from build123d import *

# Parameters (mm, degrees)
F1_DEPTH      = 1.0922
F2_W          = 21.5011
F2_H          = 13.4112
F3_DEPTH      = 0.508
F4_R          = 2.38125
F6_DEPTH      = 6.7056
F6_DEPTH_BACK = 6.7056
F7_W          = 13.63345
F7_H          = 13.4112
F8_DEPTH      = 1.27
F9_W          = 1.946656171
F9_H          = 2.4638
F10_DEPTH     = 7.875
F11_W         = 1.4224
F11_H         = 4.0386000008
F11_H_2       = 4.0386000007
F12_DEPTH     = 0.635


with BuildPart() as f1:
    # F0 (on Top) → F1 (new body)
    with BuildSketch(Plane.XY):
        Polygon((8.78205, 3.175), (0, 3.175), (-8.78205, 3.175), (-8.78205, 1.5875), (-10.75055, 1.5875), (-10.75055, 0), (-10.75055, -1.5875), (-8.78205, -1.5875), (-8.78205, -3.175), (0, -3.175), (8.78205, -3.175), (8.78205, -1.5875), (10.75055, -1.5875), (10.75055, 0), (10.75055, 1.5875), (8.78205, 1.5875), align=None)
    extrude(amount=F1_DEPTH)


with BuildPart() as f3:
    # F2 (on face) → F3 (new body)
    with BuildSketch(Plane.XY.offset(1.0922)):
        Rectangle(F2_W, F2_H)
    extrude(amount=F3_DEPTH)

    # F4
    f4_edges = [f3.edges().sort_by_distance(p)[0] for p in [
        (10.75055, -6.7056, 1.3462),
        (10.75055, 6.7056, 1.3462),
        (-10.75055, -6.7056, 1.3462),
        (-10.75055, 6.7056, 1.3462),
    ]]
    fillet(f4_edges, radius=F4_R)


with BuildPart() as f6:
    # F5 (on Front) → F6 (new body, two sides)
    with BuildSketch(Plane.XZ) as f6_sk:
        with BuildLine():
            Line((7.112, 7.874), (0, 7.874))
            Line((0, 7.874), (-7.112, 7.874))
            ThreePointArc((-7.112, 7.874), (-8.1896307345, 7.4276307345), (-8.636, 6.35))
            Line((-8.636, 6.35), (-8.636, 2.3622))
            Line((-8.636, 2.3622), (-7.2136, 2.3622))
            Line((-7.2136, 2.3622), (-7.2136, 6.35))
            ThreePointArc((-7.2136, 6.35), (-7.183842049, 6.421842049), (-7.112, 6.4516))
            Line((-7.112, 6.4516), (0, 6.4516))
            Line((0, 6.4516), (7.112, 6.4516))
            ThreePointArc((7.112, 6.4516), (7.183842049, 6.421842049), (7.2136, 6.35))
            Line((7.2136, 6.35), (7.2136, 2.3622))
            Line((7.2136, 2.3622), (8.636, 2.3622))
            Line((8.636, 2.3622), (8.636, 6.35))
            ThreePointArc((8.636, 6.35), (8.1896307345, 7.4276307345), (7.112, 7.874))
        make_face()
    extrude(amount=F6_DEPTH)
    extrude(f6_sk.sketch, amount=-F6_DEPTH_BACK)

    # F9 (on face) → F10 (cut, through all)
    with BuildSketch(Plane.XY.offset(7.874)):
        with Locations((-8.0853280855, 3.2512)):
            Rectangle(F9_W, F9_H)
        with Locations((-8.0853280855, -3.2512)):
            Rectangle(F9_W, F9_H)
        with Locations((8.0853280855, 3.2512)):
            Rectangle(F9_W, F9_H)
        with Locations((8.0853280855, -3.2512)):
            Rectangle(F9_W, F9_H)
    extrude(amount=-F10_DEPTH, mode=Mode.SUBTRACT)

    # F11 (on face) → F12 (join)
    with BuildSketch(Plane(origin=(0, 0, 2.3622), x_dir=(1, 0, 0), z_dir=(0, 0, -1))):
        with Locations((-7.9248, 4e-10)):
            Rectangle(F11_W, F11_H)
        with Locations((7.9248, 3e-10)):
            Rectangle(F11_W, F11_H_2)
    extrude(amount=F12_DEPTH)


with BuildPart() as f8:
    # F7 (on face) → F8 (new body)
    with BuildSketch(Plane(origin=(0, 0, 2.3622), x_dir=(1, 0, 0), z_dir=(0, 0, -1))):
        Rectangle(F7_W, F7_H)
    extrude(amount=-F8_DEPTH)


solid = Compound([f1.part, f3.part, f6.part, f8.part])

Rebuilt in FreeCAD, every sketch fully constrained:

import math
import FreeCAD as App
import Part
import Sketcher
Q = App.Units.Quantity


def edges_at(feature, points):
    """Names of the edges that pass closest to the given points."""
    edges = feature.Shape.Edges
    near = lambda p: min(range(len(edges)), key=lambda i: edges[i].distToShape(Part.Vertex(*p))[0])
    return sorted({f"Edge{near(p) + 1}" for p in points})

doc = App.newDocument("Part")
body = doc.addObject("PartDesign::Body", "Body")

# Sketch on XY plane
sketch1 = doc.addObject("Sketcher::SketchObject", "Sketch")
body.addObject(sketch1)
sketch1.AttachmentSupport = (doc.XY_Plane, [""])
sketch1.MapMode = "FlatFace"
sketch1.addGeometry(Part.LineSegment(App.Vector(8.78205, 3.175, 0), App.Vector(-8.78205, 3.175, 0)), False)
sketch1.addGeometry(Part.LineSegment(App.Vector(-8.78205, 3.175, 0), App.Vector(-8.78205, 1.5875, 0)), False)
sketch1.addGeometry(Part.LineSegment(App.Vector(-8.78205, 1.5875, 0), App.Vector(-10.75055, 1.5875, 0)), False)
sketch1.addGeometry(Part.LineSegment(App.Vector(-10.75055, 1.5875, 0), App.Vector(-10.75055, -1.5875, 0)), False)
sketch1.addGeometry(Part.LineSegment(App.Vector(-10.75055, -1.5875, 0), App.Vector(-8.78205, -1.5875, 0)), False)
sketch1.addGeometry(Part.LineSegment(App.Vector(-8.78205, -1.5875, 0), App.Vector(-8.78205, -3.175, 0)), False)
sketch1.addGeometry(Part.LineSegment(App.Vector(-8.78205, -3.175, 0), App.Vector(8.78205, -3.175, 0)), False)
sketch1.addGeometry(Part.LineSegment(App.Vector(8.78205, -3.175, 0), App.Vector(8.78205, -1.5875, 0)), False)
sketch1.addGeometry(Part.LineSegment(App.Vector(8.78205, -1.5875, 0), App.Vector(10.75055, -1.5875, 0)), False)
sketch1.addGeometry(Part.LineSegment(App.Vector(10.75055, -1.5875, 0), App.Vector(10.75055, 1.5875, 0)), False)
sketch1.addGeometry(Part.LineSegment(App.Vector(10.75055, 1.5875, 0), App.Vector(8.78205, 1.5875, 0)), False)
sketch1.addGeometry(Part.LineSegment(App.Vector(8.78205, 1.5875, 0), App.Vector(8.78205, 3.175, 0)), False)
sketch1.addConstraint(Sketcher.Constraint("Coincident", 0, 2, 1, 1))
sketch1.addConstraint(Sketcher.Constraint("Coincident", 1, 2, 2, 1))
sketch1.addConstraint(Sketcher.Constraint("Coincident", 2, 2, 3, 1))
sketch1.addConstraint(Sketcher.Constraint("Coincident", 3, 2, 4, 1))
sketch1.addConstraint(Sketcher.Constraint("Coincident", 4, 2, 5, 1))
sketch1.addConstraint(Sketcher.Constraint("Coincident", 5, 2, 6, 1))
sketch1.addConstraint(Sketcher.Constraint("Coincident", 6, 2, 7, 1))
sketch1.addConstraint(Sketcher.Constraint("Coincident", 7, 2, 8, 1))
sketch1.addConstraint(Sketcher.Constraint("Coincident", 8, 2, 9, 1))
sketch1.addConstraint(Sketcher.Constraint("Coincident", 9, 2, 10, 1))
sketch1.addConstraint(Sketcher.Constraint("Coincident", 10, 2, 11, 1))
sketch1.addConstraint(Sketcher.Constraint("Coincident", 11, 2, 0, 1))
sketch1.addConstraint(Sketcher.Constraint("Horizontal", 0))
sketch1.addConstraint(Sketcher.Constraint("Vertical", 1))
sketch1.addConstraint(Sketcher.Constraint("Horizontal", 2))
sketch1.addConstraint(Sketcher.Constraint("Vertical", 3))
sketch1.addConstraint(Sketcher.Constraint("Horizontal", 4))
sketch1.addConstraint(Sketcher.Constraint("Vertical", 5))
sketch1.addConstraint(Sketcher.Constraint("Horizontal", 6))
sketch1.addConstraint(Sketcher.Constraint("Vertical", 7))
sketch1.addConstraint(Sketcher.Constraint("Horizontal", 8))
sketch1.addConstraint(Sketcher.Constraint("Vertical", 9))
sketch1.addConstraint(Sketcher.Constraint("Horizontal", 10))
sketch1.addConstraint(Sketcher.Constraint("Vertical", 11))
sketch1.addConstraint(Sketcher.Constraint("Symmetric", 0, 2, 6, 2, -1, 1))
sketch1.addConstraint(Sketcher.Constraint("Symmetric", 2, 2, 8, 2, -1, 1))
sketch1.addConstraint(Sketcher.Constraint("Symmetric", 4, 2, 10, 2, -1, 1))
sketch1.addConstraint(Sketcher.Constraint("Symmetric", 4, 2, 7, 2, -2))
sketch1.addConstraint(Sketcher.Constraint("DistanceY", 1, 2, 1, 1, Q("0.0625 in")))
sketch1.addConstraint(Sketcher.Constraint("DistanceY", 3, 2, 3, 1, Q("0.125 in")))
sketch1.addConstraint(Sketcher.Constraint("DistanceX", 0, 2, 0, 1, Q("0.6915 in")))
sketch1.addConstraint(Sketcher.Constraint("DistanceX", 2, 2, 2, 1, Q("0.0775 in")))
pad1 = doc.addObject("PartDesign::Pad", "Pad")
body.addObject(pad1)
pad1.Profile = sketch1
pad1.Length = Q("0.043 in")
body2 = doc.addObject("PartDesign::Body", "Body001")

# Sketch on XY plane
sketch2 = doc.addObject("Sketcher::SketchObject", "Sketch001")
body2.addObject(sketch2)
sketch2.AttachmentSupport = (doc.getObject("XY_Plane001"), [""])
sketch2.MapMode = "FlatFace"
sketch2.AttachmentOffset = App.Placement(App.Vector(0, 0, 0.043 * 25.4), App.Rotation())
sketch2.addGeometry(Part.LineSegment(App.Vector(-10.75055, 6.7056, 0), App.Vector(-10.75055, -6.7056, 0)), False)
sketch2.addGeometry(Part.LineSegment(App.Vector(-10.75055, -6.7056, 0), App.Vector(10.75055, -6.7056, 0)), False)
sketch2.addGeometry(Part.LineSegment(App.Vector(10.75055, -6.7056, 0), App.Vector(10.75055, 6.7056, 0)), False)
sketch2.addGeometry(Part.LineSegment(App.Vector(10.75055, 6.7056, 0), App.Vector(-10.75055, 6.7056, 0)), False)
sketch2.addConstraint(Sketcher.Constraint("Coincident", 0, 2, 1, 1))
sketch2.addConstraint(Sketcher.Constraint("Coincident", 1, 2, 2, 1))
sketch2.addConstraint(Sketcher.Constraint("Coincident", 2, 2, 3, 1))
sketch2.addConstraint(Sketcher.Constraint("Coincident", 3, 2, 0, 1))
sketch2.addConstraint(Sketcher.Constraint("Vertical", 0))
sketch2.addConstraint(Sketcher.Constraint("Horizontal", 1))
sketch2.addConstraint(Sketcher.Constraint("Vertical", 2))
sketch2.addConstraint(Sketcher.Constraint("Horizontal", 3))
sketch2.addConstraint(Sketcher.Constraint("Symmetric", 0, 2, 2, 2, -1, 1))
sketch2.addConstraint(Sketcher.Constraint("DistanceY", 0, 2, 0, 1, Q("0.528 in")))
sketch2.addConstraint(Sketcher.Constraint("DistanceX", 1, 1, 1, 2, Q("0.8465 in")))
pad2 = doc.addObject("PartDesign::Pad", "Pad001")
body2.addObject(pad2)
pad2.Profile = sketch2
pad2.Length = Q("0.02 in")
doc.recompute()

fillet = doc.addObject("PartDesign::Fillet", "Fillet")
body2.addObject(fillet)
fillet.Base = (pad2, edges_at(pad2, [
    (10.751, -6.706, 1.346),
    (10.751, 6.706, 1.346),
    (-10.751, -6.706, 1.346),
    (-10.751, 6.706, 1.346),
]))
fillet.Radius = Q("0.09375 in")
body3 = doc.addObject("PartDesign::Body", "Body002")

# Sketch on XZ plane
sketch3 = doc.addObject("Sketcher::SketchObject", "Sketch002")
body3.addObject(sketch3)
sketch3.AttachmentSupport = (doc.getObject("XZ_Plane002"), [""])
sketch3.MapMode = "FlatFace"
sketch3.addGeometry(Part.LineSegment(App.Vector(7.112, 7.874, 0), App.Vector(-7.112, 7.874, 0)), False)
sketch3.addGeometry(Part.ArcOfCircle(Part.Circle(App.Vector(-7.112, 6.35, 0), App.Vector(0, 0, 1), 1.524), math.radians(90), math.radians(180)), False)
sketch3.addGeometry(Part.LineSegment(App.Vector(-8.636, 6.35, 0), App.Vector(-8.636, 2.3622, 0)), False)
sketch3.addGeometry(Part.LineSegment(App.Vector(-8.636, 2.3622, 0), App.Vector(-7.2136, 2.3622, 0)), False)
sketch3.addGeometry(Part.LineSegment(App.Vector(-7.2136, 2.3622, 0), App.Vector(-7.2136, 6.35, 0)), False)
sketch3.addGeometry(Part.ArcOfCircle(Part.Circle(App.Vector(-7.112, 6.35, 0), App.Vector(0, 0, 1), 0.1016), math.radians(90), math.radians(180)), False)
sketch3.addGeometry(Part.LineSegment(App.Vector(-7.112, 6.4516, 0), App.Vector(7.112, 6.4516, 0)), False)
sketch3.addGeometry(Part.ArcOfCircle(Part.Circle(App.Vector(7.112, 6.35, 0), App.Vector(0, 0, 1), 0.1016), math.radians(0), math.radians(90)), False)
sketch3.addGeometry(Part.LineSegment(App.Vector(7.2136, 6.35, 0), App.Vector(7.2136, 2.3622, 0)), False)
sketch3.addGeometry(Part.LineSegment(App.Vector(7.2136, 2.3622, 0), App.Vector(8.636, 2.3622, 0)), False)
sketch3.addGeometry(Part.LineSegment(App.Vector(8.636, 2.3622, 0), App.Vector(8.636, 6.35, 0)), False)
sketch3.addGeometry(Part.ArcOfCircle(Part.Circle(App.Vector(7.112, 6.35, 0), App.Vector(0, 0, 1), 1.524), math.radians(0), math.radians(90)), False)
sketch3.addConstraint(Sketcher.Constraint("Tangent", 0, 2, 1, 1))
sketch3.addConstraint(Sketcher.Constraint("Tangent", 1, 2, 2, 1))
sketch3.addConstraint(Sketcher.Constraint("Coincident", 2, 2, 3, 1))
sketch3.addConstraint(Sketcher.Constraint("Coincident", 3, 2, 4, 1))
sketch3.addConstraint(Sketcher.Constraint("Tangent", 4, 2, 5, 2))
sketch3.addConstraint(Sketcher.Constraint("Tangent", 5, 1, 6, 1))
sketch3.addConstraint(Sketcher.Constraint("Tangent", 6, 2, 7, 2))
sketch3.addConstraint(Sketcher.Constraint("Tangent", 7, 1, 8, 1))
sketch3.addConstraint(Sketcher.Constraint("Coincident", 8, 2, 9, 1))
sketch3.addConstraint(Sketcher.Constraint("Coincident", 9, 2, 10, 1))
sketch3.addConstraint(Sketcher.Constraint("Tangent", 10, 2, 11, 1))
sketch3.addConstraint(Sketcher.Constraint("Tangent", 11, 2, 0, 1))
sketch3.addConstraint(Sketcher.Constraint("Horizontal", 0))
sketch3.addConstraint(Sketcher.Constraint("Vertical", 2))
sketch3.addConstraint(Sketcher.Constraint("Horizontal", 3))
sketch3.addConstraint(Sketcher.Constraint("Vertical", 4))
sketch3.addConstraint(Sketcher.Constraint("Horizontal", 6))
sketch3.addConstraint(Sketcher.Constraint("Vertical", 8))
sketch3.addConstraint(Sketcher.Constraint("Horizontal", 9))
sketch3.addConstraint(Sketcher.Constraint("Vertical", 10))
sketch3.addConstraint(Sketcher.Constraint("Coincident", 5, 3, 1, 3))
sketch3.addConstraint(Sketcher.Constraint("Coincident", 11, 3, 7, 3))
sketch3.addConstraint(Sketcher.Constraint("Equal", 5, 7))
sketch3.addConstraint(Sketcher.Constraint("Symmetric", 3, 2, 8, 2, -2))
sketch3.addConstraint(Sketcher.Constraint("Radius", 1, Q("0.06 in")))
sketch3.addConstraint(Sketcher.Constraint("Radius", 5, Q("0.004 in")))
sketch3.addConstraint(Sketcher.Constraint("DistanceX", 0, 2, 0, 1, Q("0.56 in")))
sketch3.addConstraint(Sketcher.Constraint("DistanceY", 2, 2, 2, 1, Q("0.157 in")))
sketch3.addConstraint(Sketcher.Constraint("DistanceY", -1, 1, 1, 3, Q("0.25 in")))
pad3 = doc.addObject("PartDesign::Pad", "Pad002")
body3.addObject(pad3)
pad3.Profile = sketch3
pad3.Type = "TwoLengths"
pad3.Length = Q("0.264 in")
pad3.Length2 = Q("0.264 in")

# Sketch on XY plane
sketch4 = doc.addObject("Sketcher::SketchObject", "Sketch003")
body3.addObject(sketch4)
sketch4.AttachmentSupport = (doc.getObject("XY_Plane002"), [""])
sketch4.MapMode = "FlatFace"
sketch4.AttachmentOffset = App.Placement(App.Vector(0, 0, 0.31 * 25.4), App.Rotation())
sketch4.addGeometry(Part.LineSegment(App.Vector(-9.058656, 4.4831, 0), App.Vector(-9.058656, 2.0193, 0)), False)
sketch4.addGeometry(Part.LineSegment(App.Vector(-9.058656, 2.0193, 0), App.Vector(-7.112, 2.0193, 0)), False)
sketch4.addGeometry(Part.LineSegment(App.Vector(-7.112, 2.0193, 0), App.Vector(-7.112, 4.4831, 0)), False)
sketch4.addGeometry(Part.LineSegment(App.Vector(-7.112, 4.4831, 0), App.Vector(-9.058656, 4.4831, 0)), False)
sketch4.addGeometry(Part.LineSegment(App.Vector(-9.058656, -2.0193, 0), App.Vector(-9.058656, -4.4831, 0)), False)
sketch4.addGeometry(Part.LineSegment(App.Vector(-9.058656, -4.4831, 0), App.Vector(-7.112, -4.4831, 0)), False)
sketch4.addGeometry(Part.LineSegment(App.Vector(-7.112, -4.4831, 0), App.Vector(-7.112, -2.0193, 0)), False)
sketch4.addGeometry(Part.LineSegment(App.Vector(-7.112, -2.0193, 0), App.Vector(-9.058656, -2.0193, 0)), False)
sketch4.addGeometry(Part.LineSegment(App.Vector(7.112, 4.4831, 0), App.Vector(7.112, 2.0193, 0)), False)
sketch4.addGeometry(Part.LineSegment(App.Vector(7.112, 2.0193, 0), App.Vector(9.058656, 2.0193, 0)), False)
sketch4.addGeometry(Part.LineSegment(App.Vector(9.058656, 2.0193, 0), App.Vector(9.058656, 4.4831, 0)), False)
sketch4.addGeometry(Part.LineSegment(App.Vector(9.058656, 4.4831, 0), App.Vector(7.112, 4.4831, 0)), False)
sketch4.addGeometry(Part.LineSegment(App.Vector(7.112, -2.0193, 0), App.Vector(7.112, -4.4831, 0)), False)
sketch4.addGeometry(Part.LineSegment(App.Vector(7.112, -4.4831, 0), App.Vector(9.058656, -4.4831, 0)), False)
sketch4.addGeometry(Part.LineSegment(App.Vector(9.058656, -4.4831, 0), App.Vector(9.058656, -2.0193, 0)), False)
sketch4.addGeometry(Part.LineSegment(App.Vector(9.058656, -2.0193, 0), App.Vector(7.112, -2.0193, 0)), False)
sketch4.addConstraint(Sketcher.Constraint("Coincident", 0, 2, 1, 1))
sketch4.addConstraint(Sketcher.Constraint("Coincident", 1, 2, 2, 1))
sketch4.addConstraint(Sketcher.Constraint("Coincident", 2, 2, 3, 1))
sketch4.addConstraint(Sketcher.Constraint("Coincident", 3, 2, 0, 1))
sketch4.addConstraint(Sketcher.Constraint("Coincident", 4, 2, 5, 1))
sketch4.addConstraint(Sketcher.Constraint("Coincident", 5, 2, 6, 1))
sketch4.addConstraint(Sketcher.Constraint("Coincident", 6, 2, 7, 1))
sketch4.addConstraint(Sketcher.Constraint("Coincident", 7, 2, 4, 1))
sketch4.addConstraint(Sketcher.Constraint("Coincident", 8, 2, 9, 1))
sketch4.addConstraint(Sketcher.Constraint("Coincident", 9, 2, 10, 1))
sketch4.addConstraint(Sketcher.Constraint("Coincident", 10, 2, 11, 1))
sketch4.addConstraint(Sketcher.Constraint("Coincident", 11, 2, 8, 1))
sketch4.addConstraint(Sketcher.Constraint("Coincident", 12, 2, 13, 1))
sketch4.addConstraint(Sketcher.Constraint("Coincident", 13, 2, 14, 1))
sketch4.addConstraint(Sketcher.Constraint("Coincident", 14, 2, 15, 1))
sketch4.addConstraint(Sketcher.Constraint("Coincident", 15, 2, 12, 1))
sketch4.addConstraint(Sketcher.Constraint("Vertical", 0))
sketch4.addConstraint(Sketcher.Constraint("Horizontal", 1))
sketch4.addConstraint(Sketcher.Constraint("Vertical", 2))
sketch4.addConstraint(Sketcher.Constraint("Horizontal", 3))
sketch4.addConstraint(Sketcher.Constraint("Vertical", 4))
sketch4.addConstraint(Sketcher.Constraint("Horizontal", 5))
sketch4.addConstraint(Sketcher.Constraint("Vertical", 6))
sketch4.addConstraint(Sketcher.Constraint("Horizontal", 7))
sketch4.addConstraint(Sketcher.Constraint("Vertical", 8))
sketch4.addConstraint(Sketcher.Constraint("Horizontal", 9))
sketch4.addConstraint(Sketcher.Constraint("Vertical", 10))
sketch4.addConstraint(Sketcher.Constraint("Horizontal", 11))
sketch4.addConstraint(Sketcher.Constraint("Vertical", 12))
sketch4.addConstraint(Sketcher.Constraint("Horizontal", 13))
sketch4.addConstraint(Sketcher.Constraint("Vertical", 14))
sketch4.addConstraint(Sketcher.Constraint("Horizontal", 15))
sketch4.addConstraint(Sketcher.Constraint("Symmetric", 6, 2, 8, 2, -1, 1))
sketch4.addConstraint(Sketcher.Constraint("Symmetric", 4, 2, 10, 2, -1, 1))
sketch4.addConstraint(Sketcher.Constraint("Symmetric", 2, 2, 12, 2, -1, 1))
sketch4.addConstraint(Sketcher.Constraint("Symmetric", 0, 2, 14, 2, -1, 1))
sketch4.addConstraint(Sketcher.Constraint("Symmetric", 1, 2, 8, 2, -2))
sketch4.addConstraint(Sketcher.Constraint("Symmetric", 3, 2, 10, 2, -2))
sketch4.addConstraint(Sketcher.Constraint("DistanceY", 0, 2, 0, 1, Q("0.097 in")))
sketch4.addConstraint(Sketcher.Constraint("DistanceX", 1, 2, -1, 1, Q("0.28 in")))
sketch4.addConstraint(Sketcher.Constraint("DistanceY", 4, 2, 0, 2, Q("0.256 in")))
sketch4.addConstraint(Sketcher.Constraint("DistanceX", 1, 1, 1, 2, 1.946656))
pocket1 = doc.addObject("PartDesign::Pocket", "Pocket")
body3.addObject(pocket1)
pocket1.Profile = sketch4
pocket1.Type = "ThroughAll"

# Sketch on XY plane
sketch5 = doc.addObject("Sketcher::SketchObject", "Sketch004")
body3.addObject(sketch5)
sketch5.AttachmentSupport = (doc.getObject("XY_Plane002"), [""])
sketch5.MapMode = "FlatFace"
sketch5.AttachmentOffset = App.Placement(App.Vector(0, 0, 0.093 * 25.4), App.Rotation())
sketch5.addGeometry(Part.LineSegment(App.Vector(-8.636, -2.0193, 0), App.Vector(-8.636, 2.0193, 0)), False)
sketch5.addGeometry(Part.LineSegment(App.Vector(-8.636, 2.0193, 0), App.Vector(-7.2136, 2.0193, 0)), False)
sketch5.addGeometry(Part.LineSegment(App.Vector(-7.2136, 2.0193, 0), App.Vector(-7.2136, -2.0193, 0)), False)
sketch5.addGeometry(Part.LineSegment(App.Vector(-7.2136, -2.0193, 0), App.Vector(-8.636, -2.0193, 0)), False)
sketch5.addGeometry(Part.LineSegment(App.Vector(7.2136, -2.0193, 0), App.Vector(7.2136, 2.0193, 0)), False)
sketch5.addGeometry(Part.LineSegment(App.Vector(7.2136, 2.0193, 0), App.Vector(8.636, 2.0193, 0)), False)
sketch5.addGeometry(Part.LineSegment(App.Vector(8.636, 2.0193, 0), App.Vector(8.636, -2.0193, 0)), False)
sketch5.addGeometry(Part.LineSegment(App.Vector(8.636, -2.0193, 0), App.Vector(7.2136, -2.0193, 0)), False)
sketch5.addConstraint(Sketcher.Constraint("Coincident", 0, 2, 1, 1))
sketch5.addConstraint(Sketcher.Constraint("Coincident", 1, 2, 2, 1))
sketch5.addConstraint(Sketcher.Constraint("Coincident", 2, 2, 3, 1))
sketch5.addConstraint(Sketcher.Constraint("Coincident", 3, 2, 0, 1))
sketch5.addConstraint(Sketcher.Constraint("Coincident", 4, 2, 5, 1))
sketch5.addConstraint(Sketcher.Constraint("Coincident", 5, 2, 6, 1))
sketch5.addConstraint(Sketcher.Constraint("Coincident", 6, 2, 7, 1))
sketch5.addConstraint(Sketcher.Constraint("Coincident", 7, 2, 4, 1))
sketch5.addConstraint(Sketcher.Constraint("Vertical", 0))
sketch5.addConstraint(Sketcher.Constraint("Horizontal", 1))
sketch5.addConstraint(Sketcher.Constraint("Vertical", 2))
sketch5.addConstraint(Sketcher.Constraint("Horizontal", 3))
sketch5.addConstraint(Sketcher.Constraint("Vertical", 4))
sketch5.addConstraint(Sketcher.Constraint("Horizontal", 5))
sketch5.addConstraint(Sketcher.Constraint("Vertical", 6))
sketch5.addConstraint(Sketcher.Constraint("Horizontal", 7))
sketch5.addConstraint(Sketcher.Constraint("Symmetric", 2, 2, 4, 2, -1, 1))
sketch5.addConstraint(Sketcher.Constraint("Symmetric", 0, 2, 6, 2, -1, 1))
sketch5.addConstraint(Sketcher.Constraint("Horizontal", 1, 2, 4, 2))
sketch5.addConstraint(Sketcher.Constraint("DistanceX", 1, 1, 1, 2, Q("0.056 in")))
sketch5.addConstraint(Sketcher.Constraint("DistanceY", 0, 1, 0, 2, Q("0.159 in")))
sketch5.addConstraint(Sketcher.Constraint("DistanceX", 0, 2, -1, 1, Q("0.34 in")))
pad4 = doc.addObject("PartDesign::Pad", "Pad003")
body3.addObject(pad4)
pad4.Profile = sketch5
pad4.Length = Q("0.025 in")
pad4.Reversed = True
body4 = doc.addObject("PartDesign::Body", "Body003")

# Sketch on XY plane
sketch6 = doc.addObject("Sketcher::SketchObject", "Sketch005")
body4.addObject(sketch6)
sketch6.AttachmentSupport = (doc.getObject("XY_Plane003"), [""])
sketch6.MapMode = "FlatFace"
sketch6.AttachmentOffset = App.Placement(App.Vector(0, 0, 0.093 * 25.4), App.Rotation())
sketch6.addGeometry(Part.LineSegment(App.Vector(-6.816725, -6.7056, 0), App.Vector(-6.816725, 6.7056, 0)), False)
sketch6.addGeometry(Part.LineSegment(App.Vector(-6.816725, 6.7056, 0), App.Vector(6.816725, 6.7056, 0)), False)
sketch6.addGeometry(Part.LineSegment(App.Vector(6.816725, 6.7056, 0), App.Vector(6.816725, -6.7056, 0)), False)
sketch6.addGeometry(Part.LineSegment(App.Vector(6.816725, -6.7056, 0), App.Vector(-6.816725, -6.7056, 0)), False)
sketch6.addConstraint(Sketcher.Constraint("Coincident", 0, 2, 1, 1))
sketch6.addConstraint(Sketcher.Constraint("Coincident", 1, 2, 2, 1))
sketch6.addConstraint(Sketcher.Constraint("Coincident", 2, 2, 3, 1))
sketch6.addConstraint(Sketcher.Constraint("Coincident", 3, 2, 0, 1))
sketch6.addConstraint(Sketcher.Constraint("Vertical", 0))
sketch6.addConstraint(Sketcher.Constraint("Horizontal", 1))
sketch6.addConstraint(Sketcher.Constraint("Vertical", 2))
sketch6.addConstraint(Sketcher.Constraint("Horizontal", 3))
sketch6.addConstraint(Sketcher.Constraint("Symmetric", 0, 2, 2, 2, -1, 1))
sketch6.addConstraint(Sketcher.Constraint("DistanceY", 0, 1, 0, 2, Q("0.528 in")))
sketch6.addConstraint(Sketcher.Constraint("DistanceX", 1, 1, 1, 2, 13.63345))
pad5 = doc.addObject("PartDesign::Pad", "Pad004")
body4.addObject(pad5)
pad5.Profile = sketch6
pad5.Length = Q("0.05 in")

doc.recompute()
